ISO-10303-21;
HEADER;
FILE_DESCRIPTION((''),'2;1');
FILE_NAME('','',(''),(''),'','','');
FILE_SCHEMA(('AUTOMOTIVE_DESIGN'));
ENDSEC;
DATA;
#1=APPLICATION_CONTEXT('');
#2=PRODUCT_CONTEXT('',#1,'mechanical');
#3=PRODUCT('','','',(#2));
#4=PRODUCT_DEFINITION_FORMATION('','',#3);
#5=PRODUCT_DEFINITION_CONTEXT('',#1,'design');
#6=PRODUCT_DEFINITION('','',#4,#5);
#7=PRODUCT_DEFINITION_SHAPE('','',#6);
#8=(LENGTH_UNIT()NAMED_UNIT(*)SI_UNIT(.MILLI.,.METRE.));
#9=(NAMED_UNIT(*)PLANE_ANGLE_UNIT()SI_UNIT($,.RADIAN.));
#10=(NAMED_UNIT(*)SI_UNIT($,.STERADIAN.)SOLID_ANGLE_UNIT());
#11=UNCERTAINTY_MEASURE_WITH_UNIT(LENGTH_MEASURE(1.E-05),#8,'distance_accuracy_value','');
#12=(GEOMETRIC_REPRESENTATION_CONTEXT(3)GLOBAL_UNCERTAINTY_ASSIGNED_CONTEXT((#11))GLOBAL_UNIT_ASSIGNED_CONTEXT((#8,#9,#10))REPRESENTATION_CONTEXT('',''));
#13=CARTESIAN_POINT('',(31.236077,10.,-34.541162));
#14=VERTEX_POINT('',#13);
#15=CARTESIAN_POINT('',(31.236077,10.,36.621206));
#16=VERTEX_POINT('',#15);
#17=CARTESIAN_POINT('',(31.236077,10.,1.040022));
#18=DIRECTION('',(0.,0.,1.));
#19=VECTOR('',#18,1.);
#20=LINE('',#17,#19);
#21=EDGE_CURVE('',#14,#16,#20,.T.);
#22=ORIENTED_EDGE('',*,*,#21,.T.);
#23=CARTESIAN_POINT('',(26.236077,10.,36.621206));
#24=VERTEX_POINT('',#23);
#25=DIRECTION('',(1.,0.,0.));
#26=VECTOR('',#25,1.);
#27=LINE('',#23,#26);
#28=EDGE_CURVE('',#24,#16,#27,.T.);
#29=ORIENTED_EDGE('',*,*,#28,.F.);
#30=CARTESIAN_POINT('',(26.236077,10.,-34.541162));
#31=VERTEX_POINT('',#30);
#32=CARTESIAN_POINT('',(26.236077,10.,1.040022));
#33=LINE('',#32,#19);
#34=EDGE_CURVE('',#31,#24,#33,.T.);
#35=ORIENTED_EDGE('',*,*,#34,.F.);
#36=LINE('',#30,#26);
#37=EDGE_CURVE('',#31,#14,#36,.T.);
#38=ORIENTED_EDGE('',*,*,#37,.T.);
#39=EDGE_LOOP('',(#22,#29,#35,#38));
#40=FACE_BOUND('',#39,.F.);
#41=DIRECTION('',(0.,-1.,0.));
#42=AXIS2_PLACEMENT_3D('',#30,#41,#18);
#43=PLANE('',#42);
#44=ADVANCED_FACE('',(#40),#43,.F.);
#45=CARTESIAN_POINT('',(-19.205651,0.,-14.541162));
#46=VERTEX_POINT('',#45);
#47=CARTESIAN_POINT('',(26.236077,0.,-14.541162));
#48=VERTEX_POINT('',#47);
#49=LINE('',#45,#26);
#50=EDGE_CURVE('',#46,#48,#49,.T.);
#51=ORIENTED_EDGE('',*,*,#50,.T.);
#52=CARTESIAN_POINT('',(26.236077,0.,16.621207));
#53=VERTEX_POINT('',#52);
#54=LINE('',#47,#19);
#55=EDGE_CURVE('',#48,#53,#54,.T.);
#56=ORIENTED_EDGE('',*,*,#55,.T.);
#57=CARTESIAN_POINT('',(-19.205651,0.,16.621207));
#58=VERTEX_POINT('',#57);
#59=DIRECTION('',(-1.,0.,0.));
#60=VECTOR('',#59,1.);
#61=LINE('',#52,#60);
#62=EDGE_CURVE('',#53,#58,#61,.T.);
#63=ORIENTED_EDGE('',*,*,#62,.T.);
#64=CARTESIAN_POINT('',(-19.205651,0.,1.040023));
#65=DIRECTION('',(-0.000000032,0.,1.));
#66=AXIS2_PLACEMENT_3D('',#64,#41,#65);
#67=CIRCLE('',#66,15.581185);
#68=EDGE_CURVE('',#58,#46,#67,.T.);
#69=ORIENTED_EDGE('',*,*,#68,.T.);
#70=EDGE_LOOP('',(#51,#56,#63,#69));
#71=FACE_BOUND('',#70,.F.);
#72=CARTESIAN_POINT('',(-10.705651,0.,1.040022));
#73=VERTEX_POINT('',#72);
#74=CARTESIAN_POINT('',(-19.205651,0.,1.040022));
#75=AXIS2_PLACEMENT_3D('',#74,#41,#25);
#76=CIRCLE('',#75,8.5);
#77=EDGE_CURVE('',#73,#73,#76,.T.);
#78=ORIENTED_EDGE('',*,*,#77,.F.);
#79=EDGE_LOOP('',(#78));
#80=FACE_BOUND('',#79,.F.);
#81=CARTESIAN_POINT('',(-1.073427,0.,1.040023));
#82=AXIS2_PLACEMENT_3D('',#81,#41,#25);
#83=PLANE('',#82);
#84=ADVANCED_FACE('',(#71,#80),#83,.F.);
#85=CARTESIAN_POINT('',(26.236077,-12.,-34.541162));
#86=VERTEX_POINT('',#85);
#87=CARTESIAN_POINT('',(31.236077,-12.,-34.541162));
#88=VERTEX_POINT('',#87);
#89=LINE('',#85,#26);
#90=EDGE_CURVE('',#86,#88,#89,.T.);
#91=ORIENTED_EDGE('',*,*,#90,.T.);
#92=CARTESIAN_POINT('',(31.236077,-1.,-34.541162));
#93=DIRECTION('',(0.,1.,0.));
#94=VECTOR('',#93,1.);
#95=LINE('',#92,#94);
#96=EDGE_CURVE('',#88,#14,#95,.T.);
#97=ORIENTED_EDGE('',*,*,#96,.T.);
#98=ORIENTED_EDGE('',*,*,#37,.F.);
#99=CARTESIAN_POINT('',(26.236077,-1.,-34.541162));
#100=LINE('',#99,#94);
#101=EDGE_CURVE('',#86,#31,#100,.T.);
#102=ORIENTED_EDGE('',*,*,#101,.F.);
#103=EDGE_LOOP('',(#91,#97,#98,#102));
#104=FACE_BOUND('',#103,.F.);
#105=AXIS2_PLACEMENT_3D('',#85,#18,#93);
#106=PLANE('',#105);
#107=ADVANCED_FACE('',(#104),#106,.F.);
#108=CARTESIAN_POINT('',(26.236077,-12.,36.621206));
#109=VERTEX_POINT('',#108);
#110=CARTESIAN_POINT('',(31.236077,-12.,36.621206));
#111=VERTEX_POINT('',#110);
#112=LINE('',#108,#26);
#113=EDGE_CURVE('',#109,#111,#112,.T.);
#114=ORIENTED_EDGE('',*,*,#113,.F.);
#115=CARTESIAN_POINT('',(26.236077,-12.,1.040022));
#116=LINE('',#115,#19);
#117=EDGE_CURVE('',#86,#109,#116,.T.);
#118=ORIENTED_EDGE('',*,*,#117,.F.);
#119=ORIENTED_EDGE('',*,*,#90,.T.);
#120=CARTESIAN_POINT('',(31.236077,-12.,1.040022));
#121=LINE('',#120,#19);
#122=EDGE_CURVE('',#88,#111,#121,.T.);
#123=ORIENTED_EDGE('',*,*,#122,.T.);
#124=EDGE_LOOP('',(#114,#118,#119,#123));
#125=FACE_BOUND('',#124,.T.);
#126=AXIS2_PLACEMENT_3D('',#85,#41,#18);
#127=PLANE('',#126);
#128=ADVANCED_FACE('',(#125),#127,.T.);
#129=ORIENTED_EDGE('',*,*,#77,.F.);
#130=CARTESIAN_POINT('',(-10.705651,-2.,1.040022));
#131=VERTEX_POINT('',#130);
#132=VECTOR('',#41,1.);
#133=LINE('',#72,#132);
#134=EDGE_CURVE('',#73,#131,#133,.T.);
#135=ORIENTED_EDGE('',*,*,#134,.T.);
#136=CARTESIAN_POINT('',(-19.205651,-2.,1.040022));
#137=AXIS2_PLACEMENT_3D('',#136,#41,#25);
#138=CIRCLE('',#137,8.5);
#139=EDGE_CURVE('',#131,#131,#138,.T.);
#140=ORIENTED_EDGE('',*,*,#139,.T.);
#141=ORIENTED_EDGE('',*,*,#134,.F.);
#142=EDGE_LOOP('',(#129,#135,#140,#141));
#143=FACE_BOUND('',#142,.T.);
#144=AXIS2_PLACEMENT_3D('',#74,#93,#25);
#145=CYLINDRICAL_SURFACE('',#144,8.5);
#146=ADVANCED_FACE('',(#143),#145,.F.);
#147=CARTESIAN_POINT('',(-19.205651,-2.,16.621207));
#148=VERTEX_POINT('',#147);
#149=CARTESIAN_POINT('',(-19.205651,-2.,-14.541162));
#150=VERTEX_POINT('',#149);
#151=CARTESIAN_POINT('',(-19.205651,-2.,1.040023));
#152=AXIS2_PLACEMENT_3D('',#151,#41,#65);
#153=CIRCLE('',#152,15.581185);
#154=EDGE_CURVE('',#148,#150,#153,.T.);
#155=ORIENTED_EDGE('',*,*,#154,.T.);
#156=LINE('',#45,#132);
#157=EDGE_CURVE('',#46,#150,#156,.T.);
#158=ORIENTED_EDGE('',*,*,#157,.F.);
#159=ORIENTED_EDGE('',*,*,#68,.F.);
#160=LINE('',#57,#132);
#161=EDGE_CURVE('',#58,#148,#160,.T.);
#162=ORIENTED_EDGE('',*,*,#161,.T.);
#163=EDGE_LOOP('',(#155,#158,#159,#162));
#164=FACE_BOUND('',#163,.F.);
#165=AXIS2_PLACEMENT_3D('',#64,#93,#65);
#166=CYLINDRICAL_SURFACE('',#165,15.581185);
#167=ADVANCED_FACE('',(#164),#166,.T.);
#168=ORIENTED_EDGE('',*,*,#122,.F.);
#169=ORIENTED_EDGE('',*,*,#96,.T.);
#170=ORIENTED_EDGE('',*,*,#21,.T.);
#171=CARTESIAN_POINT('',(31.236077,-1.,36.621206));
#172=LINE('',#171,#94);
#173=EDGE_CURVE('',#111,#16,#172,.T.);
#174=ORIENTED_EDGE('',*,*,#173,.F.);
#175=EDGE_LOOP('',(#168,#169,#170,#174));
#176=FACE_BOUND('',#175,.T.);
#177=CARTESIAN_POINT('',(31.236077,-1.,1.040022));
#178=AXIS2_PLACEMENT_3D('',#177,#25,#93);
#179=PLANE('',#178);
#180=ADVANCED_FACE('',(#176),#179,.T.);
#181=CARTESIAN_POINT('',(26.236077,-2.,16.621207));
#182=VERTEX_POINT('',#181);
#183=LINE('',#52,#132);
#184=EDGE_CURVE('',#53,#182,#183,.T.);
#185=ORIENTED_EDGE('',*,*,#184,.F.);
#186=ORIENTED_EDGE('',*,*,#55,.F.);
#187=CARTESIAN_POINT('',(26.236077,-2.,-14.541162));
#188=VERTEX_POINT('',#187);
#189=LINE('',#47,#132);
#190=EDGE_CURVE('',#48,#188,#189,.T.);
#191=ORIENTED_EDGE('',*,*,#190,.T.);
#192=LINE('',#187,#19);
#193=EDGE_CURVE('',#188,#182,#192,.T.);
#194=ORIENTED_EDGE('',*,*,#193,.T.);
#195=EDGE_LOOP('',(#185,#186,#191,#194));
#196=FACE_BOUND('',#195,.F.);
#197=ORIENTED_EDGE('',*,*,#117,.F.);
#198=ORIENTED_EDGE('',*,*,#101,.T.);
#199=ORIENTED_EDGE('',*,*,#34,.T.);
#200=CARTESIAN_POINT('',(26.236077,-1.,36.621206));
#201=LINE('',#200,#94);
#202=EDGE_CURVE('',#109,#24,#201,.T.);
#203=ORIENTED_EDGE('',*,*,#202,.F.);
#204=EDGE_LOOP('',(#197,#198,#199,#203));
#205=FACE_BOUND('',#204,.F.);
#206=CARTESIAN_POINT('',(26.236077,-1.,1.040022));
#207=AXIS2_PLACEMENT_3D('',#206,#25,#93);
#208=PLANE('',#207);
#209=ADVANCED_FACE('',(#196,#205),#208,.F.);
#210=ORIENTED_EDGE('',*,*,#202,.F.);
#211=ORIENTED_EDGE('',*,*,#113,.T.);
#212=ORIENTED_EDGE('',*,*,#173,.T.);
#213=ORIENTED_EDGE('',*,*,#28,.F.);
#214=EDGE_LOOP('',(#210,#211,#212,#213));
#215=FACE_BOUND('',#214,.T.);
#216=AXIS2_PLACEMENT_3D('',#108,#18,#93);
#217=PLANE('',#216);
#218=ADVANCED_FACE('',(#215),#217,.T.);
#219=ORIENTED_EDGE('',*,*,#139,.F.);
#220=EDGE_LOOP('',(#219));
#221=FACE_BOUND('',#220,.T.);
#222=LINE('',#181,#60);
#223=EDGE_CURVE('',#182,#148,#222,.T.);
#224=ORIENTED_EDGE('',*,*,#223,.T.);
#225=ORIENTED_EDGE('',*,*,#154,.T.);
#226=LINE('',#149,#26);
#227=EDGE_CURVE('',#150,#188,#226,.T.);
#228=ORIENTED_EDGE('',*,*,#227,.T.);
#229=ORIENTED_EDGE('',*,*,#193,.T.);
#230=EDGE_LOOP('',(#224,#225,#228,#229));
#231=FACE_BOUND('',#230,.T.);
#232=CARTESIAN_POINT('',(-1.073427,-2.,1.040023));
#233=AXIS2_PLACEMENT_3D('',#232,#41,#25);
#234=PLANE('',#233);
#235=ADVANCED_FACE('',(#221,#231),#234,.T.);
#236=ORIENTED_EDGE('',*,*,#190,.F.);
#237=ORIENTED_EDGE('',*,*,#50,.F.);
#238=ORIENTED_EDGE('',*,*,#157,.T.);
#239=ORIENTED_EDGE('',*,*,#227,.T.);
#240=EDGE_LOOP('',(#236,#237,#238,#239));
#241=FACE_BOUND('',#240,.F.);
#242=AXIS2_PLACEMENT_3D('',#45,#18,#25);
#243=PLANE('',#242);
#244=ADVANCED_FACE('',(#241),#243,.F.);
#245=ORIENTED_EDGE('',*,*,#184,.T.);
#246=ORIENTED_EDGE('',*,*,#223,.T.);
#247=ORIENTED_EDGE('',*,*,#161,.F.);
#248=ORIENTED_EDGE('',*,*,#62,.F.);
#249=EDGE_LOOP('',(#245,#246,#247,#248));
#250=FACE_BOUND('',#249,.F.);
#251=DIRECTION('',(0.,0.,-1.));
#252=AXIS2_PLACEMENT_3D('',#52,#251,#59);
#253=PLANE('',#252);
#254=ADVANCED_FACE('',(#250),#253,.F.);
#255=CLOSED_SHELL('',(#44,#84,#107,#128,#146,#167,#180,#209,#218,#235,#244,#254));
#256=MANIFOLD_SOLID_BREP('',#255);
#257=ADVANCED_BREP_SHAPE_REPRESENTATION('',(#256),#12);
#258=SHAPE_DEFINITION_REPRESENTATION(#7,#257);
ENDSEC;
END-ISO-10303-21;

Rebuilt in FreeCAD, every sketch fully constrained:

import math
import FreeCAD as App
import Part
import Sketcher

V = App.Vector


def add_polygon(sketch, points):
    """Adds a closed chain of lines whose ends are joined by coincident constraints."""
    first, n = sketch.GeometryCount, len(points)
    for a, b in zip(points, points[1:] + points[:1]):
        sketch.addGeometry(Part.LineSegment(App.Vector(*a, 0), App.Vector(*b, 0)), False)
    for i in range(n):
        sketch.addConstraint(Sketcher.Constraint("Coincident", first + i, 2, first + (i + 1) % n, 1))

doc = App.newDocument("Part")
body = doc.addObject("PartDesign::Body", "Body")

# Sketch on XZ plane
sketch1 = doc.addObject("Sketcher::SketchObject", "Sketch")
body.addObject(sketch1)
sketch1.AttachmentSupport = (doc.XZ_Plane, [""])
sketch1.MapMode = "FlatFace"
sketch1.addGeometry([
    Part.LineSegment(V(26, 17, 0), V(-19, 17, 0)),  # 0
    Part.ArcOfCircle(Part.Circle(V(-19, 1, 0), V(0, 0, 1), 16), math.radians(90), math.radians(270)),  # 1
    Part.LineSegment(V(-19, -15, 0), V(26, -15, 0)),  # 2
    Part.LineSegment(V(26, -15, 0), V(26, 17, 0)),  # 3
    Part.Circle(V(-19, 1, 0), V(0, 0, 1), 8),  # 4
], False)
sketch1.addConstraint([
    Sketcher.Constraint("Tangent", 0, 2, 1, 1),
    Sketcher.Constraint("Tangent", 1, 2, 2, 1),
    Sketcher.Constraint("Coincident", 2, 2, 3, 1),
    Sketcher.Constraint("Coincident", 3, 2, 0, 1),
    Sketcher.Constraint("Horizontal", 0),
    Sketcher.Constraint("Horizontal", 2),
    Sketcher.Constraint("Vertical", 3),
    Sketcher.Constraint("Coincident", 4, 3, 1, 3),
    Sketcher.Constraint("Diameter", 4, 17.0),
    Sketcher.Constraint("Radius", 1, 15.581185),
    Sketcher.Constraint("DistanceX", 0, 2, 0, 1, 45.441728),
    Sketcher.Constraint("DistanceX", 1, 3, -1, 1, 19.205651),
    Sketcher.Constraint("DistanceY", 1, 2, -1, 1, 14.541162),
])
pad1 = doc.addObject("PartDesign::Pad", "Pad")
body.addObject(pad1)
pad1.Profile = sketch1
pad1.Length = 2

# Sketch on YZ plane
sketch2 = doc.addObject("Sketcher::SketchObject", "Sketch001")
body.addObject(sketch2)
sketch2.AttachmentSupport = (doc.YZ_Plane, [""])
sketch2.MapMode = "FlatFace"
sketch2.AttachmentOffset = App.Placement(V(0, 0, 26.236077), App.Rotation())
add_polygon(sketch2, [(-12, 37), (-12, -35), (10, -35), (10, 37)])  # lines 0-3
sketch2.addConstraint([
    Sketcher.Constraint("Vertical", 0),
    Sketcher.Constraint("Horizontal", 1),
    Sketcher.Constraint("Vertical", 2),
    Sketcher.Constraint("Horizontal", 3),
    Sketcher.Constraint("DistanceX", 1, 1, 1, 2, 22.0),
    Sketcher.Constraint("DistanceX", 0, 2, -1, 1, 12.0),
    Sketcher.Constraint("DistanceY", 0, 2, 0, 1, 71.162369),
    Sketcher.Constraint("DistanceY", 0, 2, -1, 1, 34.541162),
])
pad2 = doc.addObject("PartDesign::Pad", "Pad001")
body.addObject(pad2)
pad2.Profile = sketch2
pad2.Length = 5

doc.recompute()
